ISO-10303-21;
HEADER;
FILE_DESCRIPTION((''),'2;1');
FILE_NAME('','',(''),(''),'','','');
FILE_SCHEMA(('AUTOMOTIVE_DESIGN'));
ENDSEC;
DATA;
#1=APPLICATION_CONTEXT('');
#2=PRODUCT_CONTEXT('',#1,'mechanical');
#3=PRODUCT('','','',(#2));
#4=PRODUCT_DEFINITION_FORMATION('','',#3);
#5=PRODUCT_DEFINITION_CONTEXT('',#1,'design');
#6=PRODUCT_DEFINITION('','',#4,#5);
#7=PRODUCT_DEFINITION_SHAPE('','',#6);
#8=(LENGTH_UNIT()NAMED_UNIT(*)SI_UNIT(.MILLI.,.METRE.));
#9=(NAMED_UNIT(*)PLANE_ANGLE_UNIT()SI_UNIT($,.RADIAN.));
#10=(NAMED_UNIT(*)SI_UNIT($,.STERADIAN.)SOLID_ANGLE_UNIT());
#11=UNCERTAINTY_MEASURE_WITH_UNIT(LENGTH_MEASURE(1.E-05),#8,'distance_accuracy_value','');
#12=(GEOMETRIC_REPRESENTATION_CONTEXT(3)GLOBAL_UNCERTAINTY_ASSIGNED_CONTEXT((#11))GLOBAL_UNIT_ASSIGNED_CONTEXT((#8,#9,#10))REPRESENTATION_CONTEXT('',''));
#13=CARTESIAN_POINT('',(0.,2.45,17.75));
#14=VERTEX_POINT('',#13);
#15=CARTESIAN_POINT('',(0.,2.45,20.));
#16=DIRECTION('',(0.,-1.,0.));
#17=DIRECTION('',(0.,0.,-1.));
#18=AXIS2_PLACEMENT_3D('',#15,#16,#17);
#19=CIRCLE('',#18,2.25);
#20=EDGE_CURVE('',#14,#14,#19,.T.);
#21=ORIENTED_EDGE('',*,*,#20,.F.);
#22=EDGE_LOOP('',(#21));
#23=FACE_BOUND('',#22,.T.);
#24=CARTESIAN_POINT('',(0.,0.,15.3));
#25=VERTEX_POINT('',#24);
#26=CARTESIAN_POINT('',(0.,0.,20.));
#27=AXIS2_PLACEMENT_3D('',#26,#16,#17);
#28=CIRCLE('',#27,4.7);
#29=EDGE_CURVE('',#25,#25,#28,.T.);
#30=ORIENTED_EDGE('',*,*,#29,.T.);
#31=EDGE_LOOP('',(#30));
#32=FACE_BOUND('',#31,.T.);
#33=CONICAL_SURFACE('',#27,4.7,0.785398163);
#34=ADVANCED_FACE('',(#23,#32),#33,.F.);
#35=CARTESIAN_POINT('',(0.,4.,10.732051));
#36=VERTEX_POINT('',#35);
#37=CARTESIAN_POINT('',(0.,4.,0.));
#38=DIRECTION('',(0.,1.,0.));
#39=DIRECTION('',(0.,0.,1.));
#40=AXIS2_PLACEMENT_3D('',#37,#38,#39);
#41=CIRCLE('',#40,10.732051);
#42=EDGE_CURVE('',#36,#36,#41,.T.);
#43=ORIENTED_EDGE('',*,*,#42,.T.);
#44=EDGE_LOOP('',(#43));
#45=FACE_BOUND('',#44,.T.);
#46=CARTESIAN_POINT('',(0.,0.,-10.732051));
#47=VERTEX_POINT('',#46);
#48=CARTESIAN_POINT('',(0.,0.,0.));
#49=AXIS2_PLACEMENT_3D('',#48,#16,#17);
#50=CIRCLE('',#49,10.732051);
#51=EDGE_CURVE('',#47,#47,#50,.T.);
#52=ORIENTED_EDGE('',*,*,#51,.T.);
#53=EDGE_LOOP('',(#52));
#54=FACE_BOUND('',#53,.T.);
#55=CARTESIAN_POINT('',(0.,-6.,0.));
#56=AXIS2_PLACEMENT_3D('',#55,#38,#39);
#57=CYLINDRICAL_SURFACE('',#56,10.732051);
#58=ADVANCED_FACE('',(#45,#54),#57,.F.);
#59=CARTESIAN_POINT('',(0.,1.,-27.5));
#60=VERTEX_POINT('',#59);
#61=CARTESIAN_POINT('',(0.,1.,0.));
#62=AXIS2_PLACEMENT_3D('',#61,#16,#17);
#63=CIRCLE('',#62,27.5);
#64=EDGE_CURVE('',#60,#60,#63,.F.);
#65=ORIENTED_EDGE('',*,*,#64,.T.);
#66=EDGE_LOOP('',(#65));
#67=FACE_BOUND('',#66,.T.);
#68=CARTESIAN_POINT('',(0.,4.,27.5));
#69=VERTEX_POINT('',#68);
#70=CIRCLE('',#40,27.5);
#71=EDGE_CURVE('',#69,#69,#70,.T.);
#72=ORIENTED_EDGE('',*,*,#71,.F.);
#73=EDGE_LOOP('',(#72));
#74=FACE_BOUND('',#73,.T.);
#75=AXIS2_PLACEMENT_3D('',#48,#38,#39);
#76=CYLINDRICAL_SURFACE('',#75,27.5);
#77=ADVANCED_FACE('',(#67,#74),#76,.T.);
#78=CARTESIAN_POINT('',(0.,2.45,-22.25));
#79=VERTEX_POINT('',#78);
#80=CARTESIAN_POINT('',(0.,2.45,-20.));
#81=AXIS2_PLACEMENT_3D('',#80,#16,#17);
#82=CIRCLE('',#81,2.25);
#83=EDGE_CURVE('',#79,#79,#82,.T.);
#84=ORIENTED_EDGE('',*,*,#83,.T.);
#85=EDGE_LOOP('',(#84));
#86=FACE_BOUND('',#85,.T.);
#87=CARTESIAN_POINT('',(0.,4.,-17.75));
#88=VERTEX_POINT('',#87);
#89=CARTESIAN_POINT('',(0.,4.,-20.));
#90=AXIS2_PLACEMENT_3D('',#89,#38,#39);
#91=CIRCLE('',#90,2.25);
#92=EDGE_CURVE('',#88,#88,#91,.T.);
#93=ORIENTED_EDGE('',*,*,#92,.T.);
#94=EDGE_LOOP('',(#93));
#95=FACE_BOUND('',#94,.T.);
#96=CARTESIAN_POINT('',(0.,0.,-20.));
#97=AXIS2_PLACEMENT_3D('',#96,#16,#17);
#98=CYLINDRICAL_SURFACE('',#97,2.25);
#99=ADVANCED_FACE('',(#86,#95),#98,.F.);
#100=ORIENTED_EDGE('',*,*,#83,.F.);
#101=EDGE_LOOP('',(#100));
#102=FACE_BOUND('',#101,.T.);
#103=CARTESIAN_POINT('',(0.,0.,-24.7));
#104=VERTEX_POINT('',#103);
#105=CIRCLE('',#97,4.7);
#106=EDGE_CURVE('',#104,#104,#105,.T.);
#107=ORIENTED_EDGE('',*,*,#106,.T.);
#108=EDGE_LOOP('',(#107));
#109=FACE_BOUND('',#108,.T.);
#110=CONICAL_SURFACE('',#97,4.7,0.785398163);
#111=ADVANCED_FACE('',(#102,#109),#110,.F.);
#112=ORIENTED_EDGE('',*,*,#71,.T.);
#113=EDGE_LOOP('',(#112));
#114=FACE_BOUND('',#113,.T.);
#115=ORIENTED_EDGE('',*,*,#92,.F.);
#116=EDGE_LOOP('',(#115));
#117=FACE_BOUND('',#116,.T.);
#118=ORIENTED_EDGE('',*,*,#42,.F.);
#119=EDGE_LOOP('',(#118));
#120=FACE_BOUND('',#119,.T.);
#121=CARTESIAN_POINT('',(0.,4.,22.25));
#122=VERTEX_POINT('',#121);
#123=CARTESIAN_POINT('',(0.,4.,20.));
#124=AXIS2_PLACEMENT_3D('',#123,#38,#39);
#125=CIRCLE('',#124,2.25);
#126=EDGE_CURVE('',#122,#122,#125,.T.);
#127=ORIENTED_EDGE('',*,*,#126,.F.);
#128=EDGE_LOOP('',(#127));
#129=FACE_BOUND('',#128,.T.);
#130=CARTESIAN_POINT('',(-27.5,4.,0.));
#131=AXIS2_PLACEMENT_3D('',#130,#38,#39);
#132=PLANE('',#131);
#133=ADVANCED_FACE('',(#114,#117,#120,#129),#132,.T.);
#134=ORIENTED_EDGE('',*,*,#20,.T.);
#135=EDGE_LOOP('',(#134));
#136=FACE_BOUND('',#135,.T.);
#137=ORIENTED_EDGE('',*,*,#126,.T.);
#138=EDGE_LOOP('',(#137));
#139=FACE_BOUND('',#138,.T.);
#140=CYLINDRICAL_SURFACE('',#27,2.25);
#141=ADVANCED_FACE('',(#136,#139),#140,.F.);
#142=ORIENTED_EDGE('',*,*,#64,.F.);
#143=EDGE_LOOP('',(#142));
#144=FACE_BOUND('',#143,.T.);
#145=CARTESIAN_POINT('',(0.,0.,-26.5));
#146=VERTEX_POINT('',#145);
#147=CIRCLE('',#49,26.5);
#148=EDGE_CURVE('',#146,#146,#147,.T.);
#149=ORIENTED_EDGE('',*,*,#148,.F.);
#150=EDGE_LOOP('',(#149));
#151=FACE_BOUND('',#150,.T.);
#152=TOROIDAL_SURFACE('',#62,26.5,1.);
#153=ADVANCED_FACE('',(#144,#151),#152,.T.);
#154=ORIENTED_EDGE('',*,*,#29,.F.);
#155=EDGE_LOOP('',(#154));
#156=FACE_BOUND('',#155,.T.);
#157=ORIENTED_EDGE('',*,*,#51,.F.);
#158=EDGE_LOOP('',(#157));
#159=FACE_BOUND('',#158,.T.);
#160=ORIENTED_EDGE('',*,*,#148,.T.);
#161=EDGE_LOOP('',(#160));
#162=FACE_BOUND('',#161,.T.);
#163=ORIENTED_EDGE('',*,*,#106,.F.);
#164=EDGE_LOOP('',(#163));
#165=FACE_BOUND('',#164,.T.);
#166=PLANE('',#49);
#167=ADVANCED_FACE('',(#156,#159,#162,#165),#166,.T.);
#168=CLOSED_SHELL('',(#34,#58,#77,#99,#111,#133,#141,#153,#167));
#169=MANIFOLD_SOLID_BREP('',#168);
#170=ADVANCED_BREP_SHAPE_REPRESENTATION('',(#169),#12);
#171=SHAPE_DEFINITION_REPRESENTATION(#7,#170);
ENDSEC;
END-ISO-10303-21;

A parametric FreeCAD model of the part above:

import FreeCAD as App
import Part
import Sketcher

V = App.Vector
Q = App.Units.Quantity


def edges_at(feature, points):
    """Names of the edges that pass closest to the given points."""
    edges = feature.Shape.Edges
    near = lambda p: min(range(len(edges)), key=lambda i: edges[i].distToShape(Part.Vertex(*p))[0])
    return sorted({f"Edge{near(p) + 1}" for p in points})

doc = App.newDocument("Part")
body = doc.addObject("PartDesign::Body", "Body")

# Sketch on XY plane
sketch1 = body.newObject("Sketcher::SketchObject", "Sketch")
sketch1.AttachmentSupport = (doc.getObject("XY_Plane"), [""])
sketch1.MapMode = "FlatFace"
sketch1.addGeometry([
    Part.LineSegment(V(-27.5, 4, 0), V(-27.5, 0, 0)),  # 0
    Part.LineSegment(V(-27.5, 0, 0), V(0, 0, 0)),  # 1
    Part.LineSegment(V(0, 0, 0), V(0, 3, 0)),  # 2
    Part.LineSegment(V(0, 3, 0), V(-11, 3, 0)),  # 3
    Part.LineSegment(V(-11, 3, 0), V(-11, 8, 0)),  # 4
    Part.LineSegment(V(-11, 8, 0), V(-13, 8, 0)),  # 5
    Part.LineSegment(V(-13, 8, 0), V(-13, 4, 0)),  # 6
    Part.LineSegment(V(-13, 4, 0), V(-27.5, 4, 0)),  # 7
], False)
sketch1.addConstraint([
    Sketcher.Constraint("Coincident", 0, 2, 1, 1),
    Sketcher.Constraint("Coincident", 1, 2, 2, 1),
    Sketcher.Constraint("Coincident", 2, 2, 3, 1),
    Sketcher.Constraint("Coincident", 3, 2, 4, 1),
    Sketcher.Constraint("Coincident", 4, 2, 5, 1),
    Sketcher.Constraint("Coincident", 5, 2, 6, 1),
    Sketcher.Constraint("Coincident", 6, 2, 7, 1),
    Sketcher.Constraint("Coincident", 7, 2, 0, 1),
    Sketcher.Constraint("Vertical", 0),
    Sketcher.Constraint("Horizontal", 1),
    Sketcher.Constraint("Vertical", 2),
    Sketcher.Constraint("Horizontal", 3),
    Sketcher.Constraint("Vertical", 4),
    Sketcher.Constraint("Horizontal", 5),
    Sketcher.Constraint("Vertical", 6),
    Sketcher.Constraint("Horizontal", 7),
    Sketcher.Constraint("Coincident", 1, 2, -1, 1),
    Sketcher.Constraint("Equal", 0, 6),
    Sketcher.Constraint("DistanceX", 3, 2, 3, 1, Q("11 mm")),
    Sketcher.Constraint("DistanceX", 5, 2, 5, 1, Q("2 mm")),
    Sketcher.Constraint("DistanceY", 0, 2, 0, 1, Q("4 mm")),
    Sketcher.Constraint("DistanceY", 2, 1, 2, 2, Q("3 mm")),
    Sketcher.Constraint("DistanceX", 1, 1, 1, 2, Q("27.5 mm")),
])
revolution = body.newObject("PartDesign::Revolution", "Revolution")
revolution.Profile = sketch1
revolution.ReferenceAxis = (sketch1, ["V_Axis"])
revolution.Angle = 360

# Sketch on YZ plane
sketch2 = body.newObject("Sketcher::SketchObject", "Sketch001")
sketch2.AttachmentSupport = (doc.getObject("YZ_Plane"), [""])
sketch2.MapMode = "FlatFace"
sketch2.addGeometry([
    Part.LineSegment(V(4, 20, 0), V(0, 20, 0)),  # 0
    Part.LineSegment(V(0, 20, 0), V(0, 15.3, 0)),  # 1
    Part.LineSegment(V(0, 15.3, 0), V(2.5, 17.8, 0)),  # 2
    Part.LineSegment(V(2.5, 17.8, 0), V(4, 17.8, 0)),  # 3
    Part.LineSegment(V(4, 17.8, 0), V(4, 20, 0)),  # 4
], False)
sketch2.addGeometry(Part.LineSegment(V(0, 20, 0), V(4, 20, 0)), True)  # axis
sketch2.addConstraint([
    Sketcher.Constraint("Coincident", 0, 2, 1, 1),
    Sketcher.Constraint("Coincident", 1, 2, 2, 1),
    Sketcher.Constraint("Coincident", 2, 2, 3, 1),
    Sketcher.Constraint("Coincident", 3, 2, 4, 1),
    Sketcher.Constraint("Coincident", 4, 2, 0, 1),
    Sketcher.Constraint("Horizontal", 0),
    Sketcher.Constraint("Vertical", 1),
    Sketcher.Constraint("Horizontal", 3),
    Sketcher.Constraint("Vertical", 4),
    Sketcher.Constraint("Horizontal", 5),
    Sketcher.Constraint("Coincident", 5, 1, 0, 2),
    Sketcher.Constraint("PointOnObject", 0, 2, -2),
    Sketcher.Constraint("Vertical", 3, 2, 5, 2),
    Sketcher.Constraint("DistanceX", 0, 2, 0, 1, Q("4 mm")),
    Sketcher.Constraint("Angle", 2, Q("45 deg")),
    Sketcher.Constraint("DistanceY", 1, 2, 1, 1, Q("4.7 mm")),
    Sketcher.Constraint("DistanceY", -1, 1, 0, 2, Q("20 mm")),
    Sketcher.Constraint("DistanceX", 3, 1, 3, 2, Q("1.55 mm")),
])
groove = body.newObject("PartDesign::Groove", "Groove")
groove.Profile = sketch2
groove.ReferenceAxis = (sketch2, ["Axis0"])
groove.Angle = 360
doc.recompute()

linearpattern = body.newObject("PartDesign::LinearPattern", "LinearPattern")
linearpattern.Originals = [groove]
linearpattern.Direction = (doc.getObject("Z_Axis"), [""])
linearpattern.Mode = "offset"
linearpattern.Offset = 40
linearpattern.Occurrences = 2
linearpattern.Reversed = True
body.Tip = linearpattern
doc.recompute()

fillet = body.newObject("PartDesign::Fillet", "Fillet")
fillet.Base = (linearpattern, edges_at(linearpattern, [(0, 3, -11)]))
fillet.Radius = 2
doc.recompute()

fillet2 = body.newObject("PartDesign::Fillet", "Fillet001")
fillet2.Base = (fillet, edges_at(fillet, [(0, 0, -27.5)]))
fillet2.Radius = 1

# Sketch on XZ plane
sketch3 = body.newObject("Sketcher::SketchObject", "Sketch002")
sketch3.AttachmentSupport = (doc.getObject("XZ_Plane"), [""])
sketch3.MapMode = "FlatFace"
sketch3.AttachmentOffset = App.Placement(V(0, 0, -4), App.Rotation())
sketch3.addGeometry(Part.Circle(V(0, 0, 0), V(0, 0, 1), 33), False)
sketch3.addConstraint([
    Sketcher.Constraint("Coincident", 0, 3, -1, 1),
    Sketcher.Constraint("Diameter", 0, Q("65.881591 mm")),
])
pocket1 = body.newObject("PartDesign::Pocket", "Pocket")
pocket1.Profile = sketch3
pocket1.Length = 10

# Sketch on XZ plane
sketch4 = body.newObject("Sketcher::SketchObject", "Sketch003")
sketch4.AttachmentSupport = (doc.getObject("XZ_Plane"), [""])
sketch4.MapMode = "FlatFace"
sketch4.AttachmentOffset = App.Placement(V(0, 0, -4), App.Rotation())
sketch4.addGeometry(Part.Circle(V(0, 0, 0), V(0, 0, 1), 11), False)
sketch4.addConstraint([
    Sketcher.Constraint("Coincident", 0, 3, -1, 1),
    Sketcher.Constraint("Diameter", 0, Q("21.464102 mm")),
])
pocket2 = body.newObject("PartDesign::Pocket", "Pocket001")
pocket2.Profile = sketch4
pocket2.Length = 10
pocket2.Reversed = True

doc.recompute()
